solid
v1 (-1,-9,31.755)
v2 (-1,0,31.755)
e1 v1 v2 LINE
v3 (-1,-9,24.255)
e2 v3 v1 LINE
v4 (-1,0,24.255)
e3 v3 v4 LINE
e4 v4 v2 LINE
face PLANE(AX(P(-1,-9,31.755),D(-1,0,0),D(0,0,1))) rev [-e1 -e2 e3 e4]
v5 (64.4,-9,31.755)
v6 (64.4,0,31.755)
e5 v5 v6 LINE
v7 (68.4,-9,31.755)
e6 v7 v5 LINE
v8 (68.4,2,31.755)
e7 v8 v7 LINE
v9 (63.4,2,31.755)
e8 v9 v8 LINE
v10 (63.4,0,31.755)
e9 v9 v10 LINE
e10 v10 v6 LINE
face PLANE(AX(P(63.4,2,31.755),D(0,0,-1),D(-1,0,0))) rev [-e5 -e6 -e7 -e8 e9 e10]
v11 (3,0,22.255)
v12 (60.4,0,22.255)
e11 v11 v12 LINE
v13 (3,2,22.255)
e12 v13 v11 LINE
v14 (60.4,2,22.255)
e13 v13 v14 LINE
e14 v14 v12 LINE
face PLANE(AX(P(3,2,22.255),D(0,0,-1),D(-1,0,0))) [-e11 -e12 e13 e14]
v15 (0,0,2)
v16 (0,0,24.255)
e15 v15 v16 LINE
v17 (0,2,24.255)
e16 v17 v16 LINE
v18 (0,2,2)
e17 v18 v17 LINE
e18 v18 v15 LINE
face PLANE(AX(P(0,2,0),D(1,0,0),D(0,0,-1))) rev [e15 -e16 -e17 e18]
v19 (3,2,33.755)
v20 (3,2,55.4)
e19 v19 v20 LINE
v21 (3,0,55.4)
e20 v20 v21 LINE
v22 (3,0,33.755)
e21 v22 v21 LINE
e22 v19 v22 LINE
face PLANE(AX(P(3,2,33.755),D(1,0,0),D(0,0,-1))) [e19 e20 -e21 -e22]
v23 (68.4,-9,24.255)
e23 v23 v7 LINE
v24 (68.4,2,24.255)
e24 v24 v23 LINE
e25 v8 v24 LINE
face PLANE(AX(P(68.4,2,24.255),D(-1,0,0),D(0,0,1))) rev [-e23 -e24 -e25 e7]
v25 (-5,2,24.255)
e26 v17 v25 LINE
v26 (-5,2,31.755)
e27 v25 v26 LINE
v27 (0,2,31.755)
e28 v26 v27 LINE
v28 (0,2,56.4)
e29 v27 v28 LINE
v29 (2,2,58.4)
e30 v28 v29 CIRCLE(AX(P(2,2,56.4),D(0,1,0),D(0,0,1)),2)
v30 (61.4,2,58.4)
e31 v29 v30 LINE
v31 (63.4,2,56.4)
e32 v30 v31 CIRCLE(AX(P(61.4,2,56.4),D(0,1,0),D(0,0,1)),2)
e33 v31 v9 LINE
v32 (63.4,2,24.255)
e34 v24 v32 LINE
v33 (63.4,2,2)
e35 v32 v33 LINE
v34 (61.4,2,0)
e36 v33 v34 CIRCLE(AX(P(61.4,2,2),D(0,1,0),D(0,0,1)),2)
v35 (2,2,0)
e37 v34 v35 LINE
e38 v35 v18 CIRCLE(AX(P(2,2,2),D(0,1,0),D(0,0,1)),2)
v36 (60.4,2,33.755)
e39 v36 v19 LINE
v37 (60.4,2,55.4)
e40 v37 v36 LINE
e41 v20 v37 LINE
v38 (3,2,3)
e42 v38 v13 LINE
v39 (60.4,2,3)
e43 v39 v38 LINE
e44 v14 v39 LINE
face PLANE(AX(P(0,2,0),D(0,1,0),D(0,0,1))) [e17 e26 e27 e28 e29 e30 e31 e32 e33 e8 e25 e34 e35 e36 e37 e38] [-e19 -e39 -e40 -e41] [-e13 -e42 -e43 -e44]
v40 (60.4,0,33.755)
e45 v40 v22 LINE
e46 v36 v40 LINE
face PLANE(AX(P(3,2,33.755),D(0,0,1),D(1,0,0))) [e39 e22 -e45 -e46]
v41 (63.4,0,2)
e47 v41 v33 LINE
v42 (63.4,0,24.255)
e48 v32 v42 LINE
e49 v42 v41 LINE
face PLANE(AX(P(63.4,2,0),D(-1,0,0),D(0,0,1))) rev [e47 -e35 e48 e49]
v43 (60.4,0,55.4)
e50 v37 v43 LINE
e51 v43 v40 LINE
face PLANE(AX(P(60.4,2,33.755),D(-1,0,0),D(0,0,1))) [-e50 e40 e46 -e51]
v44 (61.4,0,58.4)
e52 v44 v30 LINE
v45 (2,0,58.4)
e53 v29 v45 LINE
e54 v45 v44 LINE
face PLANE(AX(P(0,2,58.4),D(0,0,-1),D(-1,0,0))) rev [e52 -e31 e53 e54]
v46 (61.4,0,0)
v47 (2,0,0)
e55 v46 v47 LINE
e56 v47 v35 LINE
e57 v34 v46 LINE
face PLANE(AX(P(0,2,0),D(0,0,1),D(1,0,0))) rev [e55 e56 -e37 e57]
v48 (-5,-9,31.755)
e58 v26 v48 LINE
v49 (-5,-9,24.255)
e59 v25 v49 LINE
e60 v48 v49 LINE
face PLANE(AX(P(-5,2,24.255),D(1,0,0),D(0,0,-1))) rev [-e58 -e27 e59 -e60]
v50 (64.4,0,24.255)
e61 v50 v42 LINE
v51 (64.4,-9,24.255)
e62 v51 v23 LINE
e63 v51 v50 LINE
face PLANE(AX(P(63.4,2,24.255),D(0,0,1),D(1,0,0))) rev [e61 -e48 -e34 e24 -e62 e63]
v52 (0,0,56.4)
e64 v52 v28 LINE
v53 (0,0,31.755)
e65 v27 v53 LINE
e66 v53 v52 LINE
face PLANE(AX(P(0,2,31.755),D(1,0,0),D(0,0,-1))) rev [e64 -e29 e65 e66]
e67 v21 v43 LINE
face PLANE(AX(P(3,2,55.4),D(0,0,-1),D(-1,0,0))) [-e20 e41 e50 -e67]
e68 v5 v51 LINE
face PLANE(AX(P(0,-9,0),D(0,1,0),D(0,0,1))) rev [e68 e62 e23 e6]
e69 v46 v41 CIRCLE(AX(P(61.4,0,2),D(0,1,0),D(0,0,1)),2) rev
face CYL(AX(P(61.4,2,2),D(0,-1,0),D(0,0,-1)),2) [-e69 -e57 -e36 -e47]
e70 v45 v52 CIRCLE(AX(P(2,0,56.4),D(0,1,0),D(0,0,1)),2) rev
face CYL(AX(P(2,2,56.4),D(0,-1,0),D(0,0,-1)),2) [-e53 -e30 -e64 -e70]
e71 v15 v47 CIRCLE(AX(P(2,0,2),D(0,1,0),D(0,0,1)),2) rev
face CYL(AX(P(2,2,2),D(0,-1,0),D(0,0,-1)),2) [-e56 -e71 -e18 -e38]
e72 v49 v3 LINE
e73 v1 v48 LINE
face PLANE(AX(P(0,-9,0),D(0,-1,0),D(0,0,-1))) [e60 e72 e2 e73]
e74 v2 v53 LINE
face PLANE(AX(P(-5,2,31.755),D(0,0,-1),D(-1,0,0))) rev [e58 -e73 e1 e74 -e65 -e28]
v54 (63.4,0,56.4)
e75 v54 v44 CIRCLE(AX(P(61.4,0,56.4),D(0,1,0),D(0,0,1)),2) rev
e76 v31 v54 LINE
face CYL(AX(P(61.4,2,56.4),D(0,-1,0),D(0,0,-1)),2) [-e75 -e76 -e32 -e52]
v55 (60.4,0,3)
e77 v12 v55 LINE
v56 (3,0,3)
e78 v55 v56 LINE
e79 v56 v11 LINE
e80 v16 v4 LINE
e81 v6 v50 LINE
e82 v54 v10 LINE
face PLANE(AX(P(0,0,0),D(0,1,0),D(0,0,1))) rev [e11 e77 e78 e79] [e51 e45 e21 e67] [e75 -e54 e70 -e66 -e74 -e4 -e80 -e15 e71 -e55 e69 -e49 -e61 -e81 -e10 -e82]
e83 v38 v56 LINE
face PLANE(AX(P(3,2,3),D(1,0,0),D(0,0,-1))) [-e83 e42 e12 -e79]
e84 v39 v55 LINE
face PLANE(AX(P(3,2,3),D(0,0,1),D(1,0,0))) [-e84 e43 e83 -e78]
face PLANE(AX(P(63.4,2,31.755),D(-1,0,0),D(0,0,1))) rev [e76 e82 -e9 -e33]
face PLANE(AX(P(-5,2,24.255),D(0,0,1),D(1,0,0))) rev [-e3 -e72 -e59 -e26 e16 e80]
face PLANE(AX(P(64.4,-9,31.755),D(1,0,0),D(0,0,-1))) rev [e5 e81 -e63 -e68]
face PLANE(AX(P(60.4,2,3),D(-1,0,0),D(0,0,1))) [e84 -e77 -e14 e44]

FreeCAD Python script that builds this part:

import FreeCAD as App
import Part
import Sketcher


def edges_at(feature, points):
    """Names of the edges that pass closest to the given points."""
    edges = feature.Shape.Edges
    near = lambda p: min(range(len(edges)), key=lambda i: edges[i].distToShape(Part.Vertex(*p))[0])
    return sorted({f"Edge{near(p) + 1}" for p in points})


def add_polygon(sketch, points):
    """Adds a closed chain of lines whose ends are joined by coincident constraints."""
    first, n = sketch.GeometryCount, len(points)
    for a, b in zip(points, points[1:] + points[:1]):
        sketch.addGeometry(Part.LineSegment(App.Vector(*a, 0), App.Vector(*b, 0)), False)
    for i in range(n):
        sketch.addConstraint(Sketcher.Constraint("Coincident", first + i, 2, first + (i + 1) % n, 1))

doc = App.newDocument("Part")
body = doc.addObject("PartDesign::Body", "Body")

sketch1 = body.newObject("Sketcher::SketchObject", "Sketch")
sketch1.AttachmentSupport = (doc.getObject("XZ_Plane"), [""])
sketch1.MapMode = "FlatFace"
add_polygon(sketch1, [(68, 24), (63, 24), (63, 0), (0, 0), (0, 24), (-5, 24), (-5, 32), (0, 32), (0, 58), (63, 58), (63, 32), (68, 32)])
add_polygon(sketch1, [(3, 55), (3, 34), (60, 34), (60, 55)])
add_polygon(sketch1, [(3, 22), (3, 3), (60, 3), (60, 22)])
sketch1.addConstraint([
    Sketcher.Constraint("Horizontal", 0),
    Sketcher.Constraint("Vertical", 1),
    Sketcher.Constraint("Horizontal", 2),
    Sketcher.Constraint("Vertical", 3),
    Sketcher.Constraint("Horizontal", 4),
    Sketcher.Constraint("Vertical", 5),
    Sketcher.Constraint("Horizontal", 6),
    Sketcher.Constraint("Vertical", 7),
    Sketcher.Constraint("Horizontal", 8),
    Sketcher.Constraint("Vertical", 9),
    Sketcher.Constraint("Horizontal", 10),
    Sketcher.Constraint("Vertical", 11),
    Sketcher.Constraint("Vertical", 12),
    Sketcher.Constraint("Horizontal", 13),
    Sketcher.Constraint("Vertical", 14),
    Sketcher.Constraint("Horizontal", 15),
    Sketcher.Constraint("Vertical", 16),
    Sketcher.Constraint("Horizontal", 17),
    Sketcher.Constraint("Vertical", 18),
    Sketcher.Constraint("Horizontal", 19),
    Sketcher.Constraint("Coincident", 2, 2, -1, 1),
    Sketcher.Constraint("PointOnObject", 6, 2, -2),
    Sketcher.Constraint("Horizontal", 0, 2, 3, 2),
    Sketcher.Constraint("Horizontal", 6, 2, 9, 2),
    Sketcher.Constraint("Vertical", 1, 2, 8, 2),
    Sketcher.Constraint("Vertical", 15, 2, 16, 2),
    Sketcher.Constraint("Vertical", 14, 2, 17, 2),
    Sketcher.Constraint("Equal", 0, 4),
    Sketcher.Constraint("DistanceX", 0, 2, 0, 1, 5.0),
    Sketcher.Constraint("DistanceX", 2, 2, 2, 1, 63.4),
    Sketcher.Constraint("DistanceX", 13, 1, 13, 2, 57.4),
    Sketcher.Constraint("DistanceY", 5, 1, 5, 2, 7.5),
    Sketcher.Constraint("DistanceX", -1, 1, 12, 2, 3.0),
    Sketcher.Constraint("DistanceY", -1, 1, 16, 2, 3.0),
    Sketcher.Constraint("DistanceY", 6, 2, 12, 2, 2.0),
    Sketcher.Constraint("DistanceY", 14, 2, 8, 2, 3.0),
    Sketcher.Constraint("DistanceY", 18, 2, 0, 2, 2.0),
    Sketcher.Constraint("DistanceY", -1, 1, 7, 2, 58.4),
    Sketcher.Constraint("DistanceY", 1, 2, 1, 1, 24.255),
])
pad1 = body.newObject("PartDesign::Pad", "Pad")
pad1.Profile = sketch1
pad1.Length = 2
pad1.Reversed = True
doc.recompute()

fillet = body.newObject("PartDesign::Fillet", "Fillet")
fillet.Base = (pad1, edges_at(pad1, [
    (0, 1, 0),
    (63.4, 1, 0),
    (63.4, 1, 58.4),
    (0, 1, 58.4),
]))
fillet.Radius = 2

sketch2 = body.newObject("Sketcher::SketchObject", "Sketch001")
sketch2.AttachmentSupport = (doc.getObject("XZ_Plane"), [""])
sketch2.MapMode = "FlatFace"
add_polygon(sketch2, [(-1, 24.3), (-1, 31.8), (-5, 31.8), (-5, 24.3)])
add_polygon(sketch2, [(68.4, 24.3), (68.4, 31.8), (64.4, 31.8), (64.4, 24.3)])
sketch2.addConstraint([
    Sketcher.Constraint("Vertical", 0),
    Sketcher.Constraint("Horizontal", 1),
    Sketcher.Constraint("Vertical", 2),
    Sketcher.Constraint("Horizontal", 3),
    Sketcher.Constraint("Vertical", 4),
    Sketcher.Constraint("Horizontal", 5),
    Sketcher.Constraint("Vertical", 6),
    Sketcher.Constraint("Horizontal", 7),
    Sketcher.Constraint("Horizontal", 1, 2, 4, 2),
    Sketcher.Constraint("Horizontal", 3, 2, 6, 2),
    Sketcher.Constraint("Equal", 3, 5),
    Sketcher.Constraint("DistanceX", 1, 2, 1, 1, 4.0),
    Sketcher.Constraint("DistanceY", 0, 1, 0, 2, 7.5),
    Sketcher.Constraint("DistanceX", 0, 2, -1, 1, 1.0),
    Sketcher.Constraint("DistanceX", -1, 1, 4, 2, 68.4),
    Sketcher.Constraint("DistanceY", -1, 1, 0, 2, 31.755),
])
pad2 = body.newObject("PartDesign::Pad", "Pad001")
pad2.Profile = sketch2
pad2.Length = 9

doc.recompute()
